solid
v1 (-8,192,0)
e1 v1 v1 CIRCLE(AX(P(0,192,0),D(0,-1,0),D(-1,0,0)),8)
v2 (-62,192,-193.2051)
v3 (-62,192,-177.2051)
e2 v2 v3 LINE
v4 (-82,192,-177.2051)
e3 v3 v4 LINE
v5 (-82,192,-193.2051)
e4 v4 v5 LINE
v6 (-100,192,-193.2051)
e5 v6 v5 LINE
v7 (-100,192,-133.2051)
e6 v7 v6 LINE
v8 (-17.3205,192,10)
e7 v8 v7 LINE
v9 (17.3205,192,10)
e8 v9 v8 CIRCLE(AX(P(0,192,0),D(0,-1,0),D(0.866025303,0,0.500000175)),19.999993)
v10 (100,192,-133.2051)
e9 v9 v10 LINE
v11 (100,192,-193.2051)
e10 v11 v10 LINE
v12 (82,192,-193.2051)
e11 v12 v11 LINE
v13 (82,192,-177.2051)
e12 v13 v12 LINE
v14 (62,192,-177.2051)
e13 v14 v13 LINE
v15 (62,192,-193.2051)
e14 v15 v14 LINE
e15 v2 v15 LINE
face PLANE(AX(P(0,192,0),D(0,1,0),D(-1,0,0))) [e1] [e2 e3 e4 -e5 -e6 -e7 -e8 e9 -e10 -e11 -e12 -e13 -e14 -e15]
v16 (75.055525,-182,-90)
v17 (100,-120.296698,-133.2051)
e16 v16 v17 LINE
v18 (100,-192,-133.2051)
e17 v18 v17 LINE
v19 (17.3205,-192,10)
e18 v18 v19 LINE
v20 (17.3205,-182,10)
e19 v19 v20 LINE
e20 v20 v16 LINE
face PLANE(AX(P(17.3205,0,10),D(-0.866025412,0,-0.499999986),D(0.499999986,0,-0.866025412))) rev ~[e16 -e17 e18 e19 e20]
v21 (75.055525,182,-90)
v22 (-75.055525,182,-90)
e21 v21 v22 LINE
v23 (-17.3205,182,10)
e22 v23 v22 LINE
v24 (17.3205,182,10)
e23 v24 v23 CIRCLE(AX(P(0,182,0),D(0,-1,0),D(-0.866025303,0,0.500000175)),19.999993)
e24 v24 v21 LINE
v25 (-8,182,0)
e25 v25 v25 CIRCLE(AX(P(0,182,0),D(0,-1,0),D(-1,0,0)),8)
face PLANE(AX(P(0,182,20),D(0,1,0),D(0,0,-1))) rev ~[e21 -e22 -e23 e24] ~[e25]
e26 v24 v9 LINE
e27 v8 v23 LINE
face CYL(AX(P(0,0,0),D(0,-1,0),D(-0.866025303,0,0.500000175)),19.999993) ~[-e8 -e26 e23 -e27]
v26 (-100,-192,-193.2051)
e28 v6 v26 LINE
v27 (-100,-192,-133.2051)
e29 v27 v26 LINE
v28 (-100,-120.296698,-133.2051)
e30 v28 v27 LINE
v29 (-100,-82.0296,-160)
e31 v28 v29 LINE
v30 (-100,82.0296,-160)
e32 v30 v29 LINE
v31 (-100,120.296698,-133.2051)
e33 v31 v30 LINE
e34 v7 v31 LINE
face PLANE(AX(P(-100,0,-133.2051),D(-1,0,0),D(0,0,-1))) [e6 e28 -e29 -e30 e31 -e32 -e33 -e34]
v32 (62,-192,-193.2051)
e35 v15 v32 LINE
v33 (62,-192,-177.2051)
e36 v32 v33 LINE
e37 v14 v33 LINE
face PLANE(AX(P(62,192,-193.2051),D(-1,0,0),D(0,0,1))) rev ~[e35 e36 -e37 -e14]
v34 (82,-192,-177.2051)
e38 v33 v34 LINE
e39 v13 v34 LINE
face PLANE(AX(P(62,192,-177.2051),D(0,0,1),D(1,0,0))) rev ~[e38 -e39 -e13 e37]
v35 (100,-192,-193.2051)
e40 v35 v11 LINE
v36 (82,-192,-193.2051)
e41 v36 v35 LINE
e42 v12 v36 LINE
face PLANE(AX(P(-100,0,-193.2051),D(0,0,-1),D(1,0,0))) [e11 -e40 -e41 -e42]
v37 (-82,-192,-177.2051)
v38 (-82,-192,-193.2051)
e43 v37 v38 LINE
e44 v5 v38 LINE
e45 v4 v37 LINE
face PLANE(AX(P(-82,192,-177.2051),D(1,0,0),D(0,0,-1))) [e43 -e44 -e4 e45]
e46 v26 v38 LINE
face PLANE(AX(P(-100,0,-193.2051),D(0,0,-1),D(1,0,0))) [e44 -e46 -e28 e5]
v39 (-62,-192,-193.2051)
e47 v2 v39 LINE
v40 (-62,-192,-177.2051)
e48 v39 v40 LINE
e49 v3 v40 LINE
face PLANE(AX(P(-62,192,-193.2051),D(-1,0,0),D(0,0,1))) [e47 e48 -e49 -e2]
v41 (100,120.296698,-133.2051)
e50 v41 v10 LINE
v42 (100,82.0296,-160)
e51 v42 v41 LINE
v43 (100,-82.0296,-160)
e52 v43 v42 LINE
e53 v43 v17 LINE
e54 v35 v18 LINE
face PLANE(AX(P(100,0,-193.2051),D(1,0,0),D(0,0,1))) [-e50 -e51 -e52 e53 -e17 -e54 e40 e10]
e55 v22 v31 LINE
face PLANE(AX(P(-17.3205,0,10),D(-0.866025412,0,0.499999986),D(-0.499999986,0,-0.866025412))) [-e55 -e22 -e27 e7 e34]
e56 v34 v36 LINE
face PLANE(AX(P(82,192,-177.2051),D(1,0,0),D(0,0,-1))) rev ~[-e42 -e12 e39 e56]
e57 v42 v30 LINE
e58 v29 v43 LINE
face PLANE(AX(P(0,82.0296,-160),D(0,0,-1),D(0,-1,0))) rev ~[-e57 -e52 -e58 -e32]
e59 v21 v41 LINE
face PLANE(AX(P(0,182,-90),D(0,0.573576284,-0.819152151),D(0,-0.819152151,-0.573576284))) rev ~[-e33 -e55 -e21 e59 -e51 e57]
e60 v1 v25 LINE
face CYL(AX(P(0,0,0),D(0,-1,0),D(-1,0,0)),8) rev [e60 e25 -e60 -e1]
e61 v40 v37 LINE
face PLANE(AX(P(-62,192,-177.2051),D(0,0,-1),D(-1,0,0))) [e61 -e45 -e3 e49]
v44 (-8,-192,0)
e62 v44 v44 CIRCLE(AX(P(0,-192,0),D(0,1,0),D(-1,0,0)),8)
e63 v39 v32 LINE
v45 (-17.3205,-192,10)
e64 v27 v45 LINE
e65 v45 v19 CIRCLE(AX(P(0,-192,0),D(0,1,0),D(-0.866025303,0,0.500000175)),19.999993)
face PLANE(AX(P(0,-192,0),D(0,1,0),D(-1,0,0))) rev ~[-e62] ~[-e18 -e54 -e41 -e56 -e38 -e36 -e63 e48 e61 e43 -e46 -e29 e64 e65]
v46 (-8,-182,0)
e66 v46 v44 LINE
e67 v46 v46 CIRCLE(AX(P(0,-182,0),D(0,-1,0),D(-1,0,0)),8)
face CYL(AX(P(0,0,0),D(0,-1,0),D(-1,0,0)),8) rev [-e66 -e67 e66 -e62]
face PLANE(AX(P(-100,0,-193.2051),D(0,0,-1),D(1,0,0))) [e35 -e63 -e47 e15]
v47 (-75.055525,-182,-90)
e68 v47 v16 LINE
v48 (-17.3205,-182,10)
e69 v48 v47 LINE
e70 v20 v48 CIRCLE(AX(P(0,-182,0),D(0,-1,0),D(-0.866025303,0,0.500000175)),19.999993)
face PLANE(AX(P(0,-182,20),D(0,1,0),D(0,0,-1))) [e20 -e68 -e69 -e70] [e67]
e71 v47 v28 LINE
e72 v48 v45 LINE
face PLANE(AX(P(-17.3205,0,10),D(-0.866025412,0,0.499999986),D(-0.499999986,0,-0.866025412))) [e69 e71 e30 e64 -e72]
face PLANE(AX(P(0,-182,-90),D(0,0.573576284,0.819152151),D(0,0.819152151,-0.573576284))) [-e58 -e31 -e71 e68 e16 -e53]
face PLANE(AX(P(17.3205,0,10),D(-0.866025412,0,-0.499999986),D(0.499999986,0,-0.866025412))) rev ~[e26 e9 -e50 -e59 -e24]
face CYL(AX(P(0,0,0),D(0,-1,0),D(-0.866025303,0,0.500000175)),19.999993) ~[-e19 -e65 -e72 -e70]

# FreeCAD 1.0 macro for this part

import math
import FreeCAD as App
import Part
import Sketcher
Q = App.Units.Quantity

doc = App.newDocument("Part")
body = doc.addObject("PartDesign::Body", "Body")

# Sketch on XZ plane
sketch1 = body.newObject("Sketcher::SketchObject", "Sketch")
sketch1.AttachmentSupport = (doc.getObject("XZ_Plane"), [""])
sketch1.MapMode = "FlatFace"
sketch1.addGeometry([
    Part.ArcOfCircle(Part.Circle(App.Vector(0, 0, 0), App.Vector(0, 0, 1), 20), math.radians(30), math.radians(150)),  # 0
    Part.LineSegment(App.Vector(17, 10, 0), App.Vector(100, -133, 0)),  # 1
    Part.LineSegment(App.Vector(100, -133, 0), App.Vector(100, -193, 0)),  # 2
    Part.LineSegment(App.Vector(100, -193, 0), App.Vector(-100, -193, 0)),  # 3
    Part.LineSegment(App.Vector(-100, -193, 0), App.Vector(-100, -133, 0)),  # 4
    Part.LineSegment(App.Vector(-100, -133, 0), App.Vector(-17, 10, 0)),  # 5
    Part.Circle(App.Vector(0, 0, 0), App.Vector(0, 0, 1), 8),  # 6
], False)
sketch1.addConstraint([
    Sketcher.Constraint("Tangent", 0, 1, 1, 1),
    Sketcher.Constraint("Coincident", 1, 2, 2, 1),
    Sketcher.Constraint("Coincident", 2, 2, 3, 1),
    Sketcher.Constraint("Coincident", 3, 2, 4, 1),
    Sketcher.Constraint("Coincident", 4, 2, 5, 1),
    Sketcher.Constraint("Tangent", 5, 2, 0, 2),
    Sketcher.Constraint("Vertical", 2),
    Sketcher.Constraint("Horizontal", 3),
    Sketcher.Constraint("Vertical", 4),
    Sketcher.Constraint("Coincident", 0, 3, -1, 1),
    Sketcher.Constraint("Coincident", 6, 3, -1, 1),
    Sketcher.Constraint("Symmetric", 1, 2, 4, 2, -2),
    Sketcher.Constraint("Diameter", 6, 16.0),
    Sketcher.Constraint("Radius", 0, 20.0),
    Sketcher.Constraint("DistanceY", 2, 2, 2, 1, 60.0),
    Sketcher.Constraint("Angle", 1, Q("-60 deg")),
    Sketcher.Constraint("DistanceX", -1, 1, 1, 2, 100.0),
])
pad1 = body.newObject("PartDesign::Pad", "Pad")
pad1.Profile = sketch1
pad1.Length = 384
pad1.Midplane = True

# Sketch on YZ plane
sketch2 = body.newObject("Sketcher::SketchObject", "Sketch001")
sketch2.AttachmentSupport = (doc.getObject("YZ_Plane"), [""])
sketch2.MapMode = "FlatFace"
sketch2.addGeometry([
    Part.LineSegment(App.Vector(182, 20, 0), App.Vector(-182, 20, 0)),  # 0
    Part.LineSegment(App.Vector(-182, 20, 0), App.Vector(-182, -90, 0)),  # 1
    Part.LineSegment(App.Vector(-182, -90, 0), App.Vector(-82, -160, 0)),  # 2
    Part.LineSegment(App.Vector(-82, -160, 0), App.Vector(82, -160, 0)),  # 3
    Part.LineSegment(App.Vector(82, -160, 0), App.Vector(182, -90, 0)),  # 4
    Part.LineSegment(App.Vector(182, -90, 0), App.Vector(182, 20, 0)),  # 5
], False)
sketch2.addConstraint([
    Sketcher.Constraint("Coincident", 0, 2, 1, 1),
    Sketcher.Constraint("Coincident", 1, 2, 2, 1),
    Sketcher.Constraint("Coincident", 2, 2, 3, 1),
    Sketcher.Constraint("Coincident", 3, 2, 4, 1),
    Sketcher.Constraint("Coincident", 4, 2, 5, 1),
    Sketcher.Constraint("Coincident", 5, 2, 0, 1),
    Sketcher.Constraint("Horizontal", 0),
    Sketcher.Constraint("Vertical", 1),
    Sketcher.Constraint("Horizontal", 3),
    Sketcher.Constraint("Vertical", 5),
    Sketcher.Constraint("Symmetric", 1, 2, 4, 2, -2),
    Sketcher.Constraint("Equal", 2, 4),
    Sketcher.Constraint("DistanceY", 1, 2, 1, 1, 110.0),
    Sketcher.Constraint("DistanceY", 2, 2, 0, 2, 180.0),
    Sketcher.Constraint("DistanceX", 0, 2, 0, 1, 364.0),
    Sketcher.Constraint("Angle", 2, Q("-35 deg")),
    Sketcher.Constraint("DistanceY", -1, 1, 0, 2, 20.0),
])
pocket1 = body.newObject("PartDesign::Pocket", "Pocket")
pocket1.Profile = sketch2
pocket1.Type = "ThroughAll"
pocket1.Midplane = True

# Sketch on XZ plane
sketch3 = body.newObject("Sketcher::SketchObject", "Sketch002")
sketch3.AttachmentSupport = (doc.getObject("XZ_Plane"), [""])
sketch3.MapMode = "FlatFace"
sketch3.AttachmentOffset = App.Placement(App.Vector(0, 0, -192), App.Rotation())
sketch3.addGeometry([
    Part.LineSegment(App.Vector(-62, -177, 0), App.Vector(-62, -193, 0)),  # 0
    Part.LineSegment(App.Vector(-62, -193, 0), App.Vector(-82, -193, 0)),  # 1
    Part.LineSegment(App.Vector(-82, -193, 0), App.Vector(-82, -177, 0)),  # 2
    Part.LineSegment(App.Vector(-82, -177, 0), App.Vector(-62, -177, 0)),  # 3
    Part.LineSegment(App.Vector(82, -193, 0), App.Vector(62, -193, 0)),  # 4
    Part.LineSegment(App.Vector(62, -193, 0), App.Vector(62, -177, 0)),  # 5
    Part.LineSegment(App.Vector(62, -177, 0), App.Vector(82, -177, 0)),  # 6
    Part.LineSegment(App.Vector(82, -177, 0), App.Vector(82, -193, 0)),  # 7
], False)
sketch3.addConstraint([
    Sketcher.Constraint("Coincident", 0, 2, 1, 1),
    Sketcher.Constraint("Coincident", 1, 2, 2, 1),
    Sketcher.Constraint("Coincident", 2, 2, 3, 1),
    Sketcher.Constraint("Coincident", 3, 2, 0, 1),
    Sketcher.Constraint("Coincident", 4, 2, 5, 1),
    Sketcher.Constraint("Coincident", 5, 2, 6, 1),
    Sketcher.Constraint("Coincident", 6, 2, 7, 1),
    Sketcher.Constraint("Coincident", 7, 2, 4, 1),
    Sketcher.Constraint("Vertical", 0),
    Sketcher.Constraint("Horizontal", 1),
    Sketcher.Constraint("Vertical", 2),
    Sketcher.Constraint("Horizontal", 3),
    Sketcher.Constraint("Horizontal", 4),
    Sketcher.Constraint("Vertical", 5),
    Sketcher.Constraint("Horizontal", 6),
    Sketcher.Constraint("Vertical", 7),
    Sketcher.Constraint("Symmetric", 0, 2, 4, 2, -2),
    Sketcher.Constraint("Symmetric", 2, 2, 6, 2, -2),
    Sketcher.Constraint("DistanceX", 1, 2, 1, 1, 20.0),
    Sketcher.Constraint("DistanceY", 0, 2, 0, 1, 16.0),
    Sketcher.Constraint("DistanceX", 0, 2, -1, 1, 62.0),
    Sketcher.Constraint("DistanceY", 0, 2, -1, 1, 193.205),
])
pocket2 = body.newObject("PartDesign::Pocket", "Pocket001")
pocket2.Profile = sketch3
pocket2.Type = "ThroughAll"
pocket2.Reversed = True

doc.recompute()
